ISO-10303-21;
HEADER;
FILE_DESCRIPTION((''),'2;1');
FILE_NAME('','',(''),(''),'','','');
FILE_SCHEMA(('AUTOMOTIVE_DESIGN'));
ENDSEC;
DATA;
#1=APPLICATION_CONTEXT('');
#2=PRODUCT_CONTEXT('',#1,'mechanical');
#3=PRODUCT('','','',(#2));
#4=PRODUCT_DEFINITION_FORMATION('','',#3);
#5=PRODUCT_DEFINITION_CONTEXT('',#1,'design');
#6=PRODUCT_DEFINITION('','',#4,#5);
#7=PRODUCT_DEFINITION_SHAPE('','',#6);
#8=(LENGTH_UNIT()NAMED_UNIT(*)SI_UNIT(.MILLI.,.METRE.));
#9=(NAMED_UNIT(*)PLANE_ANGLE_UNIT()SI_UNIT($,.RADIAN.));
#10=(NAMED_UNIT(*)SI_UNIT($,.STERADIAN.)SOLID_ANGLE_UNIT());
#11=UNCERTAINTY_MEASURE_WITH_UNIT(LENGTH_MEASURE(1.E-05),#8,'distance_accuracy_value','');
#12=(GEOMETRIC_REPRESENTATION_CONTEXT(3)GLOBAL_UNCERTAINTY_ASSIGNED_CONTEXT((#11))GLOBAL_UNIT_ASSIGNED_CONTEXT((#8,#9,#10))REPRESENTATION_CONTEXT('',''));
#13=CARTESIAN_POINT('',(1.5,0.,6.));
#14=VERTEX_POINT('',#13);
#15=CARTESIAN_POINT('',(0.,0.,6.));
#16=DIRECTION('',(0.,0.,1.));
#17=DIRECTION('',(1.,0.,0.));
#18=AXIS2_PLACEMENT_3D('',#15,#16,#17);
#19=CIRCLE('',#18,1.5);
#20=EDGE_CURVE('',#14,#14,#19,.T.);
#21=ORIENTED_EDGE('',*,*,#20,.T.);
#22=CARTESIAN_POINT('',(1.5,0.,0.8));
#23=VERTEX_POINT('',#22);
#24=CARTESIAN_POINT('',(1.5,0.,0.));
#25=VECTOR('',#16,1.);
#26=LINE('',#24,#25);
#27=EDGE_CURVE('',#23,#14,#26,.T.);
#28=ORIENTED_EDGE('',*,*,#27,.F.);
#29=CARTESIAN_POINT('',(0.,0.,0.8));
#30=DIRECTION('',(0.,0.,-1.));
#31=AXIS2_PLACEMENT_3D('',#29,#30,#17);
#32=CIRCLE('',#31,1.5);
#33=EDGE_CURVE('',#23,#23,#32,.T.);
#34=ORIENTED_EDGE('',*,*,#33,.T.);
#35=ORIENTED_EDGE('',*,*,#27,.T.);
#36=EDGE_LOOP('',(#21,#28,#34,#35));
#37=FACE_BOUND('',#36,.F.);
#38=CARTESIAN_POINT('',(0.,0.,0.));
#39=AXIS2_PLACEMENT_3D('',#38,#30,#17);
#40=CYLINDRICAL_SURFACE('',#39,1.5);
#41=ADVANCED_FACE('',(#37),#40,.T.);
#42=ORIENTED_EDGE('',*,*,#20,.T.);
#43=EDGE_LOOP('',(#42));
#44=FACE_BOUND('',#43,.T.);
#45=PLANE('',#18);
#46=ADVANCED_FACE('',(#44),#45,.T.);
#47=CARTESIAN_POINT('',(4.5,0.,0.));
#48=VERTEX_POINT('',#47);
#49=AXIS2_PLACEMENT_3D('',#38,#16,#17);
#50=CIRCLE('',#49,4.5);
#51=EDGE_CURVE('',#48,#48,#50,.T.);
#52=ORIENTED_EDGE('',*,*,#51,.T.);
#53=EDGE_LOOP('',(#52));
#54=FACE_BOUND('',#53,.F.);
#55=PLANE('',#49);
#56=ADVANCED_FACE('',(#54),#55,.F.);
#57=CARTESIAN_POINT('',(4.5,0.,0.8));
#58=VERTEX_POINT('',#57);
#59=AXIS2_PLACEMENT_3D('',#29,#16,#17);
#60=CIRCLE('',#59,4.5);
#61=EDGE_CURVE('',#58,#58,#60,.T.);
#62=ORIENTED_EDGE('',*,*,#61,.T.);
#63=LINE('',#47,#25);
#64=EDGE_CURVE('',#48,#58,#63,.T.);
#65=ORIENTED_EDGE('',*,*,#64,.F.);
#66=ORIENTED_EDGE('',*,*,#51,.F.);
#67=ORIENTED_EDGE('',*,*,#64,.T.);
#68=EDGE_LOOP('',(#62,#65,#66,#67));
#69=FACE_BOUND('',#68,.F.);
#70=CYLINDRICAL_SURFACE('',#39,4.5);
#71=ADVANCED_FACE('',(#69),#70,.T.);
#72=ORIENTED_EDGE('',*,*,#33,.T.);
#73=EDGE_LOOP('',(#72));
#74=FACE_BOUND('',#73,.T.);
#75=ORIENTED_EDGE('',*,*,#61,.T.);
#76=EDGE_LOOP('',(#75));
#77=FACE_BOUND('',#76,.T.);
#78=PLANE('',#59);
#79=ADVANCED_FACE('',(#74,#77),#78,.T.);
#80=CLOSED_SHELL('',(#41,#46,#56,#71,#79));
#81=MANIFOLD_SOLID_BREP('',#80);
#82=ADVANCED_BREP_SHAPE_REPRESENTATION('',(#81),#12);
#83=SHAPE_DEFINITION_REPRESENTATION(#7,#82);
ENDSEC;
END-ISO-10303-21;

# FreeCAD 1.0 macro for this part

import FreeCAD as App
import Part
import Sketcher
from FreeCAD import Vector

doc = App.newDocument("Part")
body = doc.addObject("PartDesign::Body", "Body")

# Sketch on XY plane
sketch1 = body.newObject("Sketcher::SketchObject", "Sketch")
sketch1.AttachmentSupport = (doc.getObject("XY_Plane"), [""])
sketch1.MapMode = "FlatFace"
sketch1.addGeometry(Part.Circle(Vector(0, 0, 0), Vector(0, 0, 1), 4.5), False)
sketch1.addConstraint(Sketcher.Constraint("Coincident", 0, 3, -1, 1))
sketch1.addConstraint(Sketcher.Constraint("Diameter", 0, 9.0))
pad1 = body.newObject("PartDesign::Pad", "Pad")
pad1.Profile = sketch1
pad1.Length = 0.8

# Sketch on XY plane
sketch2 = body.newObject("Sketcher::SketchObject", "Sketch001")
sketch2.AttachmentSupport = (doc.getObject("XY_Plane"), [""])
sketch2.MapMode = "FlatFace"
sketch2.addGeometry(Part.Circle(Vector(0, 0, 0), Vector(0, 0, 1), 1.5), False)
sketch2.addConstraint(Sketcher.Constraint("Coincident", 0, 3, -1, 1))
sketch2.addConstraint(Sketcher.Constraint("Diameter", 0, 3.0))
pad2 = body.newObject("PartDesign::Pad", "Pad001")
pad2.Profile = sketch2
pad2.Length = 6

doc.recompute()
